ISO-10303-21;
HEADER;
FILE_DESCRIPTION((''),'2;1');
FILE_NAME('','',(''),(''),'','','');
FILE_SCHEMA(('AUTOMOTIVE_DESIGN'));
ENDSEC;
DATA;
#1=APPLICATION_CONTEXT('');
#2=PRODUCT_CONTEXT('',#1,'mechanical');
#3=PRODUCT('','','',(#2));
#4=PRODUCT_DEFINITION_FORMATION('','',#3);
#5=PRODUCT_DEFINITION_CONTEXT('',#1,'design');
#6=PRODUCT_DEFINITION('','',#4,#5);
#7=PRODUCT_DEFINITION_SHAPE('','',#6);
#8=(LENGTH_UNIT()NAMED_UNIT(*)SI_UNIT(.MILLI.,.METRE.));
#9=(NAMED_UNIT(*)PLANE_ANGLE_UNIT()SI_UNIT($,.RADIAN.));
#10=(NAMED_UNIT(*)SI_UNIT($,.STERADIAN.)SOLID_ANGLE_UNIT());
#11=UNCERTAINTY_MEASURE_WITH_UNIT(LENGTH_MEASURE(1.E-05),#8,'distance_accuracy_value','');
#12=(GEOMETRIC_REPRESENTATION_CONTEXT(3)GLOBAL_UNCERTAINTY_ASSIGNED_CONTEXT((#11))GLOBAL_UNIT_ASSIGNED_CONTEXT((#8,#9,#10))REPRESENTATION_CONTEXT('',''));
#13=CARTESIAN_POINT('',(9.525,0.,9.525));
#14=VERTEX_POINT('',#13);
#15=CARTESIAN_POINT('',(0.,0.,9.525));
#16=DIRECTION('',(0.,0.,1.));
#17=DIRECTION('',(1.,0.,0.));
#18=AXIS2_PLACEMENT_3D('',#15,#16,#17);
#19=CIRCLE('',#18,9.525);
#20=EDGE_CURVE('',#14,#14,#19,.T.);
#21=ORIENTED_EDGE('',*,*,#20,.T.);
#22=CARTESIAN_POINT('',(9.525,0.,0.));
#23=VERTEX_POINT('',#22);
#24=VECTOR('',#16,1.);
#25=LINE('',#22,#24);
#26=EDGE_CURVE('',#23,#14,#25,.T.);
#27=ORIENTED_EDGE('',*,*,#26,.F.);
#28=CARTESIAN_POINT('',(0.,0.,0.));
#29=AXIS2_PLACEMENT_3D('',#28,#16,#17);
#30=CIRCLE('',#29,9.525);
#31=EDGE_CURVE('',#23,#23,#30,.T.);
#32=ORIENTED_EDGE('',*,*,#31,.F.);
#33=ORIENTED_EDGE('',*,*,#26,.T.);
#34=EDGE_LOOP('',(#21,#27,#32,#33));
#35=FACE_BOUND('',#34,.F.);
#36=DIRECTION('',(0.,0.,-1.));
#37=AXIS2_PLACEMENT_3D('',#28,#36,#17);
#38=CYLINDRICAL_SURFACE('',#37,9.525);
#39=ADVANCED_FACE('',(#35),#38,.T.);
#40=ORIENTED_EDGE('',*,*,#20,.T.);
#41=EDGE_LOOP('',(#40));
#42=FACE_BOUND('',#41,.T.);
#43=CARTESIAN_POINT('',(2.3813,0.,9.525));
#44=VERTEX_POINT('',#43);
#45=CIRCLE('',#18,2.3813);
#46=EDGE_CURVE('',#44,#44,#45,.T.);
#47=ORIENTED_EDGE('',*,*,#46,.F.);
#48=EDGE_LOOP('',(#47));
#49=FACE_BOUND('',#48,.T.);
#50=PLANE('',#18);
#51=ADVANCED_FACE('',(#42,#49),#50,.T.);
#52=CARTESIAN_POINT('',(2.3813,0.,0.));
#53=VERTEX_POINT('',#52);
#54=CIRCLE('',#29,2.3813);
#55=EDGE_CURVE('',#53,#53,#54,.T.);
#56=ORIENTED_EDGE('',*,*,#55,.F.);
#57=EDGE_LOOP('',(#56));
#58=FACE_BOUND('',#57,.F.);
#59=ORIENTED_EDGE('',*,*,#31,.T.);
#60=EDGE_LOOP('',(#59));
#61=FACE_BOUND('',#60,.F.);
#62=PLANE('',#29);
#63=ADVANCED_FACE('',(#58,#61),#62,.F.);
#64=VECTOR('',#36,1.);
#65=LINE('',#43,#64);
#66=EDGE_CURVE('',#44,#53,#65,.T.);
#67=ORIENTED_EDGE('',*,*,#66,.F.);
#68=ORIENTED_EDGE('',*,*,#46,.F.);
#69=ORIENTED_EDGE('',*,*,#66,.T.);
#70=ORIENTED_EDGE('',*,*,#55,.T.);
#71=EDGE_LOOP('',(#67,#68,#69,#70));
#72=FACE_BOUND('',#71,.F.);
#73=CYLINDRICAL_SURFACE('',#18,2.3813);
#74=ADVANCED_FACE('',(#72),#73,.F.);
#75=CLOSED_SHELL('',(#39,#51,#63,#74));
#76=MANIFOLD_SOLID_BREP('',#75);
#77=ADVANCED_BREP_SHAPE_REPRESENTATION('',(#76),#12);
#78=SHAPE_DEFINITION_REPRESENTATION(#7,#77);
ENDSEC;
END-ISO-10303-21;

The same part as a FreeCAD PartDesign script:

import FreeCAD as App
import Part
import Sketcher
from FreeCAD import Vector
Q = App.Units.Quantity

doc = App.newDocument("Part")
params = doc.addObject("Spreadsheet::Sheet", "Params")
for row, (alias, value) in enumerate([
    ("sketch1_diameter", "0.75 in"),
    ("pad1_length", "0.375 in"),
    ("sketch2_diameter", "0.1875 in"),
    ("pocket1_length", "1 in"),
], start=1):
    params.set(f"A{row}", alias)
    params.set(f"B{row}", "=" + value)
    params.setAlias(f"B{row}", alias)

body = doc.addObject("PartDesign::Body", "Body")

sketch1 = body.newObject("Sketcher::SketchObject", "Sketch")
sketch1.AttachmentSupport = (doc.getObject("XY_Plane"), [""])
sketch1.MapMode = "FlatFace"
sketch1.addGeometry(Part.Circle(Vector(0, 0, 0), Vector(0, 0, 1), 10), False)
sketch1.addConstraint([
    Sketcher.Constraint("Coincident", 0, 3, -1, 1),
    Sketcher.Constraint("Diameter", 0, Q("0.75 in")),
])
sketch1.setExpression("Constraints[1]", "Params.sketch1_diameter")
pad1 = body.newObject("PartDesign::Pad", "Pad")
pad1.Profile = sketch1
pad1.setExpression("Length", "Params.pad1_length")

sketch2 = body.newObject("Sketcher::SketchObject", "Sketch001")
sketch2.AttachmentSupport = (doc.getObject("XY_Plane"), [""])
sketch2.MapMode = "FlatFace"
sketch2.AttachmentOffset = App.Placement(Vector(0, 0, 0.375 * 25.4), App.Rotation())
sketch2.addGeometry(Part.Circle(Vector(0, 0, 0), Vector(0, 0, 1), 2.4), False)
sketch2.addConstraint([
    Sketcher.Constraint("Coincident", 0, 3, -1, 1),
    Sketcher.Constraint("Diameter", 0, Q("0.1875 in")),
])
sketch2.setExpression("Constraints[1]", "Params.sketch2_diameter")
pocket1 = body.newObject("PartDesign::Pocket", "Pocket")
pocket1.Profile = sketch2
pocket1.setExpression("Length", "Params.pocket1_length")

doc.recompute()
